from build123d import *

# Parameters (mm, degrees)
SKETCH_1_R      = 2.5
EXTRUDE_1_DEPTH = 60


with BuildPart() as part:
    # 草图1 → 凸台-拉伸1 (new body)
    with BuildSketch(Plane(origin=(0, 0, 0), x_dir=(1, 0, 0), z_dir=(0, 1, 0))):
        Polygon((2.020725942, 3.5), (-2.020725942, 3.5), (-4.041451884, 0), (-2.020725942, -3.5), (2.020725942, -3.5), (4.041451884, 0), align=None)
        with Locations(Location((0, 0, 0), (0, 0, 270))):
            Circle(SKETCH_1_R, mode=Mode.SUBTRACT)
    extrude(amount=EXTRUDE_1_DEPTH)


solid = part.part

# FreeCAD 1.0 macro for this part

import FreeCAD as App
import Part
import Sketcher

V = App.Vector
Q = App.Units.Quantity

doc = App.newDocument("Part")
body = doc.addObject("PartDesign::Body", "Body")

sketch1 = body.newObject("Sketcher::SketchObject", "Sketch")
sketch1.AttachmentSupport = (doc.getObject("XZ_Plane"), [""])
sketch1.MapMode = "FlatFace"
sketch1.addGeometry([
    Part.LineSegment(V(2, -3.5, 0), V(-2, -3.5, 0)),
    Part.LineSegment(V(-2, -3.5, 0), V(-4, 0, 0)),
    Part.LineSegment(V(-4, 0, 0), V(-2, 3.5, 0)),
    Part.LineSegment(V(-2, 3.5, 0), V(2, 3.5, 0)),
    Part.LineSegment(V(2, 3.5, 0), V(4, 0, 0)),
    Part.LineSegment(V(4, 0, 0), V(2, -3.5, 0)),
    Part.Circle(V(0, 0, 0), V(0, 0, 1), 2.5),
], False)
sketch1.addConstraint([
    Sketcher.Constraint("Coincident", 0, 2, 1, 1),
    Sketcher.Constraint("Coincident", 1, 2, 2, 1),
    Sketcher.Constraint("Coincident", 2, 2, 3, 1),
    Sketcher.Constraint("Coincident", 3, 2, 4, 1),
    Sketcher.Constraint("Coincident", 4, 2, 5, 1),
    Sketcher.Constraint("Coincident", 5, 2, 0, 1),
    Sketcher.Constraint("Horizontal", 0),
    Sketcher.Constraint("Horizontal", 3),
    Sketcher.Constraint("Coincident", 6, 3, -1, 1),
    Sketcher.Constraint("Symmetric", 0, 2, 3, 2, -1, 1),
    Sketcher.Constraint("Symmetric", 1, 2, 4, 2, -1, 1),
    Sketcher.Constraint("PointOnObject", 1, 2, -1),
    Sketcher.Constraint("Parallel", 2, 5),
    Sketcher.Constraint("Vertical", 0, 2, 2, 2),
    Sketcher.Constraint("Diameter", 6, Q("5 mm")),
    Sketcher.Constraint("Angle", 1, Q("120 deg")),
    Sketcher.Constraint("DistanceY", 0, 2, 2, 2, Q("7 mm")),
    Sketcher.Constraint("DistanceX", 0, 2, 0, 1, Q("4.041452 mm")),
])
pad1 = body.newObject("PartDesign::Pad", "Pad")
pad1.Profile = sketch1
pad1.Length = 60
pad1.Reversed = True

doc.recompute()
